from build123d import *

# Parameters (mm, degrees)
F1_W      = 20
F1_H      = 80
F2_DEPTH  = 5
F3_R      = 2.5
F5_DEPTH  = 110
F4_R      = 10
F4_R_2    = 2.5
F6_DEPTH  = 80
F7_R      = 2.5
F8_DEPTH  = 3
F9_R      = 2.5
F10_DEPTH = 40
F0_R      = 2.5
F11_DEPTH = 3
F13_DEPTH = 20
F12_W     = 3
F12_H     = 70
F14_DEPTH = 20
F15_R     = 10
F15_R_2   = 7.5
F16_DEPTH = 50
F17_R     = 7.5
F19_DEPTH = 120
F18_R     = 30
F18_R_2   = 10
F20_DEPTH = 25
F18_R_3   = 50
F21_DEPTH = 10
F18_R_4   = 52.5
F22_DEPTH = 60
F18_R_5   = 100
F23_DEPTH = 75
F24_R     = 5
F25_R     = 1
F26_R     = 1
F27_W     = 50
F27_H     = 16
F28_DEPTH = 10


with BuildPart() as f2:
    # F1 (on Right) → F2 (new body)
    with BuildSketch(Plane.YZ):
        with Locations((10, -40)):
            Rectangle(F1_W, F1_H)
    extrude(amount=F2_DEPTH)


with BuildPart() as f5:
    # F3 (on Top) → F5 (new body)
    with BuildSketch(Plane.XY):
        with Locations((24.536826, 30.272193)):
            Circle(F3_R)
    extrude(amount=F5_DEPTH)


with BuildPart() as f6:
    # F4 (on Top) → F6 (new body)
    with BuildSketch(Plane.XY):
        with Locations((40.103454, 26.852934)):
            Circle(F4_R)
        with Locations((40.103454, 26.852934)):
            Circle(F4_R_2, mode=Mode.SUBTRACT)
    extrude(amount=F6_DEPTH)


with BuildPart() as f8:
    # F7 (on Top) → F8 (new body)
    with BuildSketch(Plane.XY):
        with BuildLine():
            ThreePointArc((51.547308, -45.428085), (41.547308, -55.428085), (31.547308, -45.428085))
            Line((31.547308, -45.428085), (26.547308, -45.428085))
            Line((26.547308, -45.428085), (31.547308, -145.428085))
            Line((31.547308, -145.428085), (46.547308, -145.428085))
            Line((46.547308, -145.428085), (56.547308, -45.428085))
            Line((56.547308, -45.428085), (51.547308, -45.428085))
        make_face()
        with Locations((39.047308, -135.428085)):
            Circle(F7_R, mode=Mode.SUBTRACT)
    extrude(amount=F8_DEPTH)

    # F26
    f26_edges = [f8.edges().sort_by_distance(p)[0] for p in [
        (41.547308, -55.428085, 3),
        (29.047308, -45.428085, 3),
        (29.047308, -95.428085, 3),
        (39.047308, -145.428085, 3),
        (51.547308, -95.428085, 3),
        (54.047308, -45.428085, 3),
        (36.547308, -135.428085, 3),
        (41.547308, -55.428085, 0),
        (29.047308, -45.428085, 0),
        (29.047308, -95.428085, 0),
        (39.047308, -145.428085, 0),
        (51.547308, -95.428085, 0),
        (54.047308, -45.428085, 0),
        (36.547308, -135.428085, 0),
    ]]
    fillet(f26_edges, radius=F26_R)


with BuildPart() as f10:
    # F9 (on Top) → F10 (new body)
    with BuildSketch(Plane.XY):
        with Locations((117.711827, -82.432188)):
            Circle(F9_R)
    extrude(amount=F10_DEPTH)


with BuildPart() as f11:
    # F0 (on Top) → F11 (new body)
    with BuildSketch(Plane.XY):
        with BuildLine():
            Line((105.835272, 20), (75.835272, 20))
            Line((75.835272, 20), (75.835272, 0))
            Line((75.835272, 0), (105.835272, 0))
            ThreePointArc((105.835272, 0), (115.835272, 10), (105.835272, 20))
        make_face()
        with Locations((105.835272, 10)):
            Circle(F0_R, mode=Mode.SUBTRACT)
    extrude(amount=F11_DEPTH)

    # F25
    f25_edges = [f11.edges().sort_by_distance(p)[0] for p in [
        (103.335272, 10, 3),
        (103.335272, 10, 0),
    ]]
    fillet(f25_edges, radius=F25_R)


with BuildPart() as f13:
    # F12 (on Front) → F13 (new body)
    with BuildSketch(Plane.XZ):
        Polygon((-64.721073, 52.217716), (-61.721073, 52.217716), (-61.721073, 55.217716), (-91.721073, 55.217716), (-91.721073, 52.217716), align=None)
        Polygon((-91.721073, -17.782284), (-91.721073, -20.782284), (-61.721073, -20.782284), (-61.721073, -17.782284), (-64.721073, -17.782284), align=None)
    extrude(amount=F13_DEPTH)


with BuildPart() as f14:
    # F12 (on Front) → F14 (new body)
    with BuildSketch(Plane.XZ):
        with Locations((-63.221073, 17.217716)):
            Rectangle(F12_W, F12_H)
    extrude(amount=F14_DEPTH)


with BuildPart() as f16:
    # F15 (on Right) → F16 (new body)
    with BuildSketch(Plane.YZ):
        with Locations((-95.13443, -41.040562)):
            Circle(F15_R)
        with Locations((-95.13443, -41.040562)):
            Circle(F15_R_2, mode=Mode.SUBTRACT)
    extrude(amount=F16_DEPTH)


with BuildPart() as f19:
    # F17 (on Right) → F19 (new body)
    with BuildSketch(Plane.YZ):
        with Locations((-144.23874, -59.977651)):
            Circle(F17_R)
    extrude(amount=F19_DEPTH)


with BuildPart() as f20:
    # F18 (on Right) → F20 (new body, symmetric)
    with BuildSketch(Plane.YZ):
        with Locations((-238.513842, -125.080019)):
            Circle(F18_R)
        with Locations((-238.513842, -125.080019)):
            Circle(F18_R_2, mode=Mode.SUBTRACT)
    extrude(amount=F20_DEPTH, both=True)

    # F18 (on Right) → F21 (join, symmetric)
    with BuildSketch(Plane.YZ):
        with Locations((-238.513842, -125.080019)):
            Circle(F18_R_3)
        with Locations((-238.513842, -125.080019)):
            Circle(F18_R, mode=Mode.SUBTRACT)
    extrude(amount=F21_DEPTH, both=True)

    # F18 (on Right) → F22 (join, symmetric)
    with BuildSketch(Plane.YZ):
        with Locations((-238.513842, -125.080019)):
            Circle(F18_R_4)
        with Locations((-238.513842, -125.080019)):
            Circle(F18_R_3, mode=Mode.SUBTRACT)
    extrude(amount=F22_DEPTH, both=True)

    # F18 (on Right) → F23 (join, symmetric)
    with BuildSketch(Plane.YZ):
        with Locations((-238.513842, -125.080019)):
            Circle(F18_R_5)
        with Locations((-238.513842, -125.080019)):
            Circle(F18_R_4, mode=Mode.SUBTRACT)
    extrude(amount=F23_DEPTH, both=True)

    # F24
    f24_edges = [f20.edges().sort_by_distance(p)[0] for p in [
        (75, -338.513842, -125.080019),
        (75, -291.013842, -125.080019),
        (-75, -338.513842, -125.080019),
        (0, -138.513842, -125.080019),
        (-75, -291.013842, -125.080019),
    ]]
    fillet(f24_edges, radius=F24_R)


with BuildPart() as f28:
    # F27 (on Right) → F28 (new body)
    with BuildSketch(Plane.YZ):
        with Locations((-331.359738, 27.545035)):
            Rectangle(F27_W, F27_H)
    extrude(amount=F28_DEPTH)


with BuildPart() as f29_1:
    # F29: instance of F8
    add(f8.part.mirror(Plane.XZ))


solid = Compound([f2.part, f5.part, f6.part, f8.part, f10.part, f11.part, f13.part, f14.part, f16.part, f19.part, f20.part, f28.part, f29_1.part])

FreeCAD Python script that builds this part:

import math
import FreeCAD as App
import Part
import Sketcher
from FreeCAD import Vector


def edges_at(feature, points):
    """Names of the edges that pass closest to the given points."""
    edges = feature.Shape.Edges
    near = lambda p: min(range(len(edges)), key=lambda i: edges[i].distToShape(Part.Vertex(*p))[0])
    return sorted({f"Edge{near(p) + 1}" for p in points})

doc = App.newDocument("Part")
params = doc.addObject("Spreadsheet::Sheet", "Params")
for row, (alias, value) in enumerate([
    ("sketch1_width", "20 mm"),
    ("sketch1_height", "80 mm"),
    ("pad1_length", "5 mm"),
    ("sketch2_diameter", "5 mm"),
    ("pad2_length", "110 mm"),
    ("sketch3_diameter", "20 mm"),
    ("sketch3_diameter2", "5 mm"),
    ("pad3_length", "80 mm"),
    ("sketch4_diameter", "5 mm"),
    ("sketch4_radius", "10 mm"),
    ("sketch4_width", "5 mm"),
    ("sketch4_width2", "15 mm"),
    ("pad4_length", "3 mm"),
    ("fillet_radius", "1 mm"),
    ("sketch5_diameter", "5 mm"),
    ("pad5_length", "40 mm"),
    ("sketch6_diameter", "5 mm"),
    ("sketch6_radius", "10 mm"),
    ("sketch6_width", "30 mm"),
    ("pad6_length", "3 mm"),
    ("fillet2_radius", "1 mm"),
    ("sketch7_width", "30 mm"),
    ("sketch7_height", "3 mm"),
    ("pad7_length", "20 mm"),
    ("sketch8_width", "3 mm"),
    ("sketch8_height", "70 mm"),
    ("pad8_length", "20 mm"),
    ("sketch9_diameter", "20 mm"),
    ("sketch9_diameter2", "15 mm"),
    ("pad9_length", "50 mm"),
    ("sketch10_diameter", "15 mm"),
    ("pad10_length", "120 mm"),
    ("sketch11_diameter", "60 mm"),
    ("sketch11_diameter2", "20 mm"),
    ("pad11_length", "50 mm"),
    ("sketch12_diameter", "100 mm"),
    ("sketch12_diameter2", "60 mm"),
    ("pad12_length", "20 mm"),
    ("sketch13_diameter", "105 mm"),
    ("sketch13_diameter2", "100 mm"),
    ("pad13_length", "120 mm"),
    ("sketch14_diameter", "200 mm"),
    ("sketch14_diameter2", "105 mm"),
    ("pad14_length", "150 mm"),
    ("fillet3_radius", "5 mm"),
    ("sketch15_width", "50 mm"),
    ("sketch15_height", "16 mm"),
    ("pad15_length", "10 mm"),
], start=1):
    params.set(f"A{row}", alias)
    params.set(f"B{row}", "=" + value)
    params.setAlias(f"B{row}", alias)

body = doc.addObject("PartDesign::Body", "Body")

# Sketch on YZ plane
sketch1 = body.newObject("Sketcher::SketchObject", "Sketch")
sketch1.AttachmentSupport = (doc.getObject("YZ_Plane"), [""])
sketch1.MapMode = "FlatFace"
sketch1.addGeometry(Part.LineSegment(Vector(0, 0, 0), Vector(0, -80, 0)), False)
sketch1.addGeometry(Part.LineSegment(Vector(0, -80, 0), Vector(20, -80, 0)), False)
sketch1.addGeometry(Part.LineSegment(Vector(20, -80, 0), Vector(20, 0, 0)), False)
sketch1.addGeometry(Part.LineSegment(Vector(20, 0, 0), Vector(0, 0, 0)), False)
sketch1.addConstraint(Sketcher.Constraint("Coincident", 0, 2, 1, 1))
sketch1.addConstraint(Sketcher.Constraint("Coincident", 1, 2, 2, 1))
sketch1.addConstraint(Sketcher.Constraint("Coincident", 2, 2, 3, 1))
sketch1.addConstraint(Sketcher.Constraint("Coincident", 3, 2, 0, 1))
sketch1.addConstraint(Sketcher.Constraint("Vertical", 0))
sketch1.addConstraint(Sketcher.Constraint("Horizontal", 1))
sketch1.addConstraint(Sketcher.Constraint("Vertical", 2))
sketch1.addConstraint(Sketcher.Constraint("Horizontal", 3))
sketch1.addConstraint(Sketcher.Constraint("Coincident", 3, 2, -1, 1))
sketch1.addConstraint(Sketcher.Constraint("DistanceX", 1, 1, 1, 2, 20.0))
sketch1.addConstraint(Sketcher.Constraint("DistanceY", 0, 2, 0, 1, 80.0))
sketch1.setExpression("Constraints[9]", "Params.sketch1_width")
sketch1.setExpression("Constraints[10]", "Params.sketch1_height")
pad1 = body.newObject("PartDesign::Pad", "Pad")
pad1.Profile = sketch1
pad1.setExpression("Length", "Params.pad1_length")
body2 = doc.addObject("PartDesign::Body", "Body001")

# Sketch on XY plane
sketch2 = body2.newObject("Sketcher::SketchObject", "Sketch001")
sketch2.AttachmentSupport = (doc.getObject("XY_Plane001"), [""])
sketch2.MapMode = "FlatFace"
sketch2.addGeometry(Part.Circle(Vector(24.536826, 30.272193, 0), Vector(0, 0, 1), 2.5), False)
sketch2.addConstraint(Sketcher.Constraint("Diameter", 0, 5.0))
sketch2.addConstraint(Sketcher.Constraint("DistanceX", -1, 1, 0, 3, 24.536826))
sketch2.addConstraint(Sketcher.Constraint("DistanceY", -1, 1, 0, 3, 30.272193))
sketch2.setExpression("Constraints[0]", "Params.sketch2_diameter")
pad2 = body2.newObject("PartDesign::Pad", "Pad001")
pad2.Profile = sketch2
pad2.setExpression("Length", "Params.pad2_length")
body3 = doc.addObject("PartDesign::Body", "Body002")

# Sketch on XY plane
sketch3 = body3.newObject("Sketcher::SketchObject", "Sketch002")
sketch3.AttachmentSupport = (doc.getObject("XY_Plane002"), [""])
sketch3.MapMode = "FlatFace"
sketch3.addGeometry(Part.Circle(Vector(40.103454, 26.852934, 0), Vector(0, 0, 1), 10), False)
sketch3.addGeometry(Part.Circle(Vector(40.103454, 26.852934, 0), Vector(0, 0, 1), 2.5), False)
sketch3.addConstraint(Sketcher.Constraint("Coincident", 1, 3, 0, 3))
sketch3.addConstraint(Sketcher.Constraint("Diameter", 0, 20.0))
sketch3.addConstraint(Sketcher.Constraint("Diameter", 1, 5.0))
sketch3.addConstraint(Sketcher.Constraint("DistanceX", -1, 1, 0, 3, 40.103454))
sketch3.addConstraint(Sketcher.Constraint("DistanceY", -1, 1, 0, 3, 26.852934))
sketch3.setExpression("Constraints[1]", "Params.sketch3_diameter")
sketch3.setExpression("Constraints[2]", "Params.sketch3_diameter2")
pad3 = body3.newObject("PartDesign::Pad", "Pad002")
pad3.Profile = sketch3
pad3.setExpression("Length", "Params.pad3_length")
body4 = doc.addObject("PartDesign::Body", "Body003")

# Sketch on XY plane
sketch4 = body4.newObject("Sketcher::SketchObject", "Sketch003")
sketch4.AttachmentSupport = (doc.getObject("XY_Plane003"), [""])
sketch4.MapMode = "FlatFace"
sketch4.addGeometry(Part.ArcOfCircle(Part.Circle(Vector(41.547308, -45.428085, 0), Vector(0, 0, 1), 10), math.radians(180), math.radians(360)), False)
sketch4.addGeometry(Part.LineSegment(Vector(31.547308, -45.428085, 0), Vector(26.547308, -45.428085, 0)), False)
sketch4.addGeometry(Part.LineSegment(Vector(26.547308, -45.428085, 0), Vector(31.547308, -145.428085, 0)), False)
sketch4.addGeometry(Part.LineSegment(Vector(31.547308, -145.428085, 0), Vector(46.547308, -145.428085, 0)), False)
sketch4.addGeometry(Part.LineSegment(Vector(46.547308, -145.428085, 0), Vector(56.547308, -45.428085, 0)), False)
sketch4.addGeometry(Part.LineSegment(Vector(56.547308, -45.428085, 0), Vector(51.547308, -45.428085, 0)), False)
sketch4.addGeometry(Part.Circle(Vector(39.047308, -135.428085, 0), Vector(0, 0, 1), 2.5), False)
sketch4.addConstraint(Sketcher.Constraint("Coincident", 0, 1, 1, 1))
sketch4.addConstraint(Sketcher.Constraint("Coincident", 1, 2, 2, 1))
sketch4.addConstraint(Sketcher.Constraint("Coincident", 2, 2, 3, 1))
sketch4.addConstraint(Sketcher.Constraint("Coincident", 3, 2, 4, 1))
sketch4.addConstraint(Sketcher.Constraint("Coincident", 4, 2, 5, 1))
sketch4.addConstraint(Sketcher.Constraint("Coincident", 5, 2, 0, 2))
sketch4.addConstraint(Sketcher.Constraint("Horizontal", 1))
sketch4.addConstraint(Sketcher.Constraint("Horizontal", 3))
sketch4.addConstraint(Sketcher.Constraint("Horizontal", 5))
sketch4.addConstraint(Sketcher.Constraint("Horizontal", 1, 2, 4, 2))
sketch4.addConstraint(Sketcher.Constraint("Vertical", 0, 1, 2, 2))
sketch4.addConstraint(Sketcher.Constraint("Equal", 1, 5))
sketch4.addConstraint(Sketcher.Constraint("Diameter", 6, 5.0))
sketch4.addConstraint(Sketcher.Constraint("Radius", 0, 10.0))
sketch4.addConstraint(Sketcher.Constraint("DistanceX", 1, 2, 1, 1, 5.0))
sketch4.addConstraint(Sketcher.Constraint("DistanceX", 3, 1, 3, 2, 15.0))
sketch4.addConstraint(Sketcher.Constraint("DistanceY", 6, 3, 0, 3, 90.0))
sketch4.addConstraint(Sketcher.Constraint("DistanceY", 6, 3, 0, 1, 90.0))
sketch4.addConstraint(Sketcher.Constraint("DistanceY", 2, 2, 6, 3, 10.0))
sketch4.addConstraint(Sketcher.Constraint("DistanceX", 6, 3, 0, 3, 2.5))
sketch4.addConstraint(Sketcher.Constraint("DistanceX", -1, 1, 0, 1, 31.547308))
sketch4.addConstraint(Sketcher.Constraint("DistanceY", 0, 3, -1, 1, 45.428085))
sketch4.setExpression("Constraints[12]", "Params.sketch4_diameter")
sketch4.setExpression("Constraints[13]", "Params.sketch4_radius")
sketch4.setExpression("Constraints[14]", "Params.sketch4_width")
sketch4.setExpression("Constraints[15]", "Params.sketch4_width2")
pad4 = body4.newObject("PartDesign::Pad", "Pad003")
pad4.Profile = sketch4
pad4.setExpression("Length", "Params.pad4_length")
doc.recompute()

fillet = body4.newObject("PartDesign::Fillet", "Fillet")
fillet.Base = (pad4, edges_at(pad4, [
    (41.547, -55.428, 3),
    (29.047, -45.428, 3),
    (29.047, -95.428, 3),
    (39.047, -145.428, 3),
    (51.547, -95.428, 3),
    (54.047, -45.428, 3),
    (36.547, -135.428, 3),
    (41.547, -55.428, 0),
    (29.047, -45.428, 0),
    (29.047, -95.428, 0),
    (39.047, -145.428, 0),
    (51.547, -95.428, 0),
    (54.047, -45.428, 0),
    (36.547, -135.428, 0),
]))
fillet.setExpression("Radius", "Params.fillet_radius")
body5 = doc.addObject("PartDesign::Body", "Body004")

# Sketch on XY plane
sketch5 = body5.newObject("Sketcher::SketchObject", "Sketch004")
sketch5.AttachmentSupport = (doc.getObject("XY_Plane004"), [""])
sketch5.MapMode = "FlatFace"
sketch5.addGeometry(Part.Circle(Vector(117.711827, -82.432188, 0), Vector(0, 0, 1), 2.5), False)
sketch5.addConstraint(Sketcher.Constraint("Diameter", 0, 5.0))
sketch5.addConstraint(Sketcher.Constraint("DistanceX", -1, 1, 0, 3, 117.711827))
sketch5.addConstraint(Sketcher.Constraint("DistanceY", 0, 3, -1, 1, 82.432188))
sketch5.setExpression("Constraints[0]", "Params.sketch5_diameter")
pad5 = body5.newObject("PartDesign::Pad", "Pad004")
pad5.Profile = sketch5
pad5.setExpression("Length", "Params.pad5_length")
body6 = doc.addObject("PartDesign::Body", "Body005")

# Sketch on XY plane
sketch6 = body6.newObject("Sketcher::SketchObject", "Sketch005")
sketch6.AttachmentSupport = (doc.getObject("XY_Plane005"), [""])
sketch6.MapMode = "FlatFace"
sketch6.addGeometry(Part.LineSegment(Vector(105.835272, 20, 0), Vector(75.835272, 20, 0)), False)
sketch6.addGeometry(Part.LineSegment(Vector(75.835272, 20, 0), Vector(75.835272, 0, 0)), False)
sketch6.addGeometry(Part.LineSegment(Vector(75.835272, 0, 0), Vector(105.835272, 0, 0)), False)
sketch6.addGeometry(Part.ArcOfCircle(Part.Circle(Vector(105.835272, 10, 0), Vector(0, 0, 1), 10), math.radians(-90), math.radians(90)), False)
sketch6.addGeometry(Part.Circle(Vector(105.835272, 10, 0), Vector(0, 0, 1), 2.5), False)
sketch6.addConstraint(Sketcher.Constraint("Coincident", 0, 2, 1, 1))
sketch6.addConstraint(Sketcher.Constraint("Coincident", 1, 2, 2, 1))
sketch6.addConstraint(Sketcher.Constraint("Tangent", 2, 2, 3, 1))
sketch6.addConstraint(Sketcher.Constraint("Tangent", 3, 2, 0, 1))
sketch6.addConstraint(Sketcher.Constraint("Horizontal", 0))
sketch6.addConstraint(Sketcher.Constraint("Vertical", 1))
sketch6.addConstraint(Sketcher.Constraint("Horizontal", 2))
sketch6.addConstraint(Sketcher.Constraint("Coincident", 4, 3, 3, 3))
sketch6.addConstraint(Sketcher.Constraint("PointOnObject", 1, 2, -1))
sketch6.addConstraint(Sketcher.Constraint("Diameter", 4, 5.0))
sketch6.addConstraint(Sketcher.Constraint("Radius", 3, 10.0))
sketch6.addConstraint(Sketcher.Constraint("DistanceX", 0, 2, 0, 1, 30.0))
sketch6.addConstraint(Sketcher.Constraint("DistanceX", -1, 1, 3, 3, 105.835272))
sketch6.setExpression("Constraints[9]", "Params.sketch6_diameter")
sketch6.setExpression("Constraints[10]", "Params.sketch6_radius")
sketch6.setExpression("Constraints[11]", "Params.sketch6_width")
pad6 = body6.newObject("PartDesign::Pad", "Pad005")
pad6.Profile = sketch6
pad6.setExpression("Length", "Params.pad6_length")
doc.recompute()

fillet2 = body6.newObject("PartDesign::Fillet", "Fillet001")
fillet2.Base = (pad6, edges_at(pad6, [(103.335, 10, 3), (103.335, 10, 0)]))
fillet2.setExpression("Radius", "Params.fillet2_radius")
body7 = doc.addObject("PartDesign::Body", "Body006")
body7.AllowCompound = True

# Sketch on XZ plane
sketch7 = body7.newObject("Sketcher::SketchObject", "Sketch006")
sketch7.AttachmentSupport = (doc.getObject("XZ_Plane006"), [""])
sketch7.MapMode = "FlatFace"
sketch7.addGeometry(Part.LineSegment(Vector(-61.721073, 52.217716, 0), Vector(-61.721073, 55.217716, 0)), False)
sketch7.addGeometry(Part.LineSegment(Vector(-61.721073, 55.217716, 0), Vector(-91.721073, 55.217716, 0)), False)
sketch7.addGeometry(Part.LineSegment(Vector(-91.721073, 55.217716, 0), Vector(-91.721073, 52.217716, 0)), False)
sketch7.addGeometry(Part.LineSegment(Vector(-91.721073, 52.217716, 0), Vector(-61.721073, 52.217716, 0)), False)
sketch7.addGeometry(Part.LineSegment(Vector(-91.721073, -17.782284, 0), Vector(-91.721073, -20.782284, 0)), False)
sketch7.addGeometry(Part.LineSegment(Vector(-91.721073, -20.782284, 0), Vector(-61.721073, -20.782284, 0)), False)
sketch7.addGeometry(Part.LineSegment(Vector(-61.721073, -20.782284, 0), Vector(-61.721073, -17.782284, 0)), False)
sketch7.addGeometry(Part.LineSegment(Vector(-61.721073, -17.782284, 0), Vector(-91.721073, -17.782284, 0)), False)
sketch7.addConstraint(Sketcher.Constraint("Coincident", 0, 2, 1, 1))
sketch7.addConstraint(Sketcher.Constraint("Coincident", 1, 2, 2, 1))
sketch7.addConstraint(Sketcher.Constraint("Coincident", 2, 2, 3, 1))
sketch7.addConstraint(Sketcher.Constraint("Coincident", 3, 2, 0, 1))
sketch7.addConstraint(Sketcher.Constraint("Coincident", 4, 2, 5, 1))
sketch7.addConstraint(Sketcher.Constraint("Coincident", 5, 2, 6, 1))
sketch7.addConstraint(Sketcher.Constraint("Coincident", 6, 2, 7, 1))
sketch7.addConstraint(Sketcher.Constraint("Coincident", 7, 2, 4, 1))
sketch7.addConstraint(Sketcher.Constraint("Vertical", 0))
sketch7.addConstraint(Sketcher.Constraint("Horizontal", 1))
sketch7.addConstraint(Sketcher.Constraint("Vertical", 2))
sketch7.addConstraint(Sketcher.Constraint("Horizontal", 3))
sketch7.addConstraint(Sketcher.Constraint("Vertical", 4))
sketch7.addConstraint(Sketcher.Constraint("Horizontal", 5))
sketch7.addConstraint(Sketcher.Constraint("Vertical", 6))
sketch7.addConstraint(Sketcher.Constraint("Horizontal", 7))
sketch7.addConstraint(Sketcher.Constraint("Vertical", 2, 2, 4, 2))
sketch7.addConstraint(Sketcher.Constraint("Vertical", 3, 2, 5, 2))
sketch7.addConstraint(Sketcher.Constraint("Equal", 2, 4))
sketch7.addConstraint(Sketcher.Constraint("DistanceX", 1, 2, 1, 1, 30.0))
sketch7.addConstraint(Sketcher.Constraint("DistanceY", 0, 1, 0, 2, 3.0))
sketch7.addConstraint(Sketcher.Constraint("DistanceY", 4, 2, 2, 2, 73.0))
sketch7.addConstraint(Sketcher.Constraint("DistanceX", 0, 2, -1, 1, 61.721073))
sketch7.addConstraint(Sketcher.Constraint("DistanceY", -1, 1, 0, 2, 55.217716))
sketch7.setExpression("Constraints[19]", "Params.sketch7_width")
sketch7.setExpression("Constraints[20]", "Params.sketch7_height")
pad7 = body7.newObject("PartDesign::Pad", "Pad006")
pad7.Profile = sketch7
pad7.setExpression("Length", "Params.pad7_length")
body8 = doc.addObject("PartDesign::Body", "Body007")

# Sketch on XZ plane
sketch8 = body8.newObject("Sketcher::SketchObject", "Sketch007")
sketch8.AttachmentSupport = (doc.getObject("XZ_Plane007"), [""])
sketch8.MapMode = "FlatFace"
sketch8.addGeometry(Part.LineSegment(Vector(-64.721073, 52.217716, 0), Vector(-64.721073, -17.782284, 0)), False)
sketch8.addGeometry(Part.LineSegment(Vector(-64.721073, -17.782284, 0), Vector(-61.721073, -17.782284, 0)), False)
sketch8.addGeometry(Part.LineSegment(Vector(-61.721073, -17.782284, 0), Vector(-61.721073, 52.217716, 0)), False)
sketch8.addGeometry(Part.LineSegment(Vector(-61.721073, 52.217716, 0), Vector(-64.721073, 52.217716, 0)), False)
sketch8.addConstraint(Sketcher.Constraint("Coincident", 0, 2, 1, 1))
sketch8.addConstraint(Sketcher.Constraint("Coincident", 1, 2, 2, 1))
sketch8.addConstraint(Sketcher.Constraint("Coincident", 2, 2, 3, 1))
sketch8.addConstraint(Sketcher.Constraint("Coincident", 3, 2, 0, 1))
sketch8.addConstraint(Sketcher.Constraint("Vertical", 0))
sketch8.addConstraint(Sketcher.Constraint("Horizontal", 1))
sketch8.addConstraint(Sketcher.Constraint("Vertical", 2))
sketch8.addConstraint(Sketcher.Constraint("Horizontal", 3))
sketch8.addConstraint(Sketcher.Constraint("DistanceX", 1, 1, 1, 2, 3.0))
sketch8.addConstraint(Sketcher.Constraint("DistanceY", 0, 2, 0, 1, 70.0))
sketch8.addConstraint(Sketcher.Constraint("DistanceX", 0, 2, -1, 1, 64.721073))
sketch8.addConstraint(Sketcher.Constraint("DistanceY", 0, 2, -1, 1, 17.782284))
sketch8.setExpression("Constraints[8]", "Params.sketch8_width")
sketch8.setExpression("Constraints[9]", "Params.sketch8_height")
pad8 = body8.newObject("PartDesign::Pad", "Pad007")
pad8.Profile = sketch8
pad8.setExpression("Length", "Params.pad8_length")
body9 = doc.addObject("PartDesign::Body", "Body008")

# Sketch on YZ plane
sketch9 = body9.newObject("Sketcher::SketchObject", "Sketch008")
sketch9.AttachmentSupport = (doc.getObject("YZ_Plane008"), [""])
sketch9.MapMode = "FlatFace"
sketch9.addGeometry(Part.Circle(Vector(-95.13443, -41.040562, 0), Vector(0, 0, 1), 10), False)
sketch9.addGeometry(Part.Circle(Vector(-95.13443, -41.040562, 0), Vector(0, 0, 1), 7.5), False)
sketch9.addConstraint(Sketcher.Constraint("Coincident", 1, 3, 0, 3))
sketch9.addConstraint(Sketcher.Constraint("Diameter", 0, 20.0))
sketch9.addConstraint(Sketcher.Constraint("Diameter", 1, 15.0))
sketch9.addConstraint(Sketcher.Constraint("DistanceX", 0, 3, -1, 1, 95.13443))
sketch9.addConstraint(Sketcher.Constraint("DistanceY", 0, 3, -1, 1, 41.040562))
sketch9.setExpression("Constraints[1]", "Params.sketch9_diameter")
sketch9.setExpression("Constraints[2]", "Params.sketch9_diameter2")
pad9 = body9.newObject("PartDesign::Pad", "Pad008")
pad9.Profile = sketch9
pad9.setExpression("Length", "Params.pad9_length")
body10 = doc.addObject("PartDesign::Body", "Body009")

# Sketch on YZ plane
sketch10 = body10.newObject("Sketcher::SketchObject", "Sketch009")
sketch10.AttachmentSupport = (doc.getObject("YZ_Plane009"), [""])
sketch10.MapMode = "FlatFace"
sketch10.addGeometry(Part.Circle(Vector(-144.23874, -59.977651, 0), Vector(0, 0, 1), 7.5), False)
sketch10.addConstraint(Sketcher.Constraint("Diameter", 0, 15.0))
sketch10.addConstraint(Sketcher.Constraint("DistanceX", 0, 3, -1, 1, 144.23874))
sketch10.addConstraint(Sketcher.Constraint("DistanceY", 0, 3, -1, 1, 59.977651))
sketch10.setExpression("Constraints[0]", "Params.sketch10_diameter")
pad10 = body10.newObject("PartDesign::Pad", "Pad009")
pad10.Profile = sketch10
pad10.setExpression("Length", "Params.pad10_length")
body11 = doc.addObject("PartDesign::Body", "Body010")

# Sketch on YZ plane
sketch11 = body11.newObject("Sketcher::SketchObject", "Sketch010")
sketch11.AttachmentSupport = (doc.getObject("YZ_Plane010"), [""])
sketch11.MapMode = "FlatFace"
sketch11.addGeometry(Part.Circle(Vector(-238.513842, -125.080019, 0), Vector(0, 0, 1), 30), False)
sketch11.addGeometry(Part.Circle(Vector(-238.513842, -125.080019, 0), Vector(0, 0, 1), 10), False)
sketch11.addConstraint(Sketcher.Constraint("Coincident", 1, 3, 0, 3))
sketch11.addConstraint(Sketcher.Constraint("Diameter", 0, 60.0))
sketch11.addConstraint(Sketcher.Constraint("Diameter", 1, 20.0))
sketch11.addConstraint(Sketcher.Constraint("DistanceY", 0, 3, -1, 1, 125.080019))
sketch11.addConstraint(Sketcher.Constraint("DistanceX", 0, 3, -1, 1, 238.513842))
sketch11.setExpression("Constraints[1]", "Params.sketch11_diameter")
sketch11.setExpression("Constraints[2]", "Params.sketch11_diameter2")
pad11 = body11.newObject("PartDesign::Pad", "Pad010")
pad11.Profile = sketch11
pad11.setExpression("Length", "Params.pad11_length")
pad11.Midplane = True

# Sketch on YZ plane
sketch12 = body11.newObject("Sketcher::SketchObject", "Sketch011")
sketch12.AttachmentSupport = (doc.getObject("YZ_Plane010"), [""])
sketch12.MapMode = "FlatFace"
sketch12.addGeometry(Part.Circle(Vector(-238.513842, -125.080019, 0), Vector(0, 0, 1), 50), False)
sketch12.addGeometry(Part.Circle(Vector(-238.513842, -125.080019, 0), Vector(0, 0, 1), 30), False)
sketch12.addConstraint(Sketcher.Constraint("Coincident", 1, 3, 0, 3))
sketch12.addConstraint(Sketcher.Constraint("Diameter", 0, 100.0))
sketch12.addConstraint(Sketcher.Constraint("Diameter", 1, 60.0))
sketch12.addConstraint(Sketcher.Constraint("DistanceY", 0, 3, -1, 1, 125.080019))
sketch12.addConstraint(Sketcher.Constraint("DistanceX", 0, 3, -1, 1, 238.513842))
sketch12.setExpression("Constraints[1]", "Params.sketch12_diameter")
sketch12.setExpression("Constraints[2]", "Params.sketch12_diameter2")
pad12 = body11.newObject("PartDesign::Pad", "Pad011")
pad12.Profile = sketch12
pad12.setExpression("Length", "Params.pad12_length")
pad12.Midplane = True

# Sketch on YZ plane
sketch13 = body11.newObject("Sketcher::SketchObject", "Sketch012")
sketch13.AttachmentSupport = (doc.getObject("YZ_Plane010"), [""])
sketch13.MapMode = "FlatFace"
sketch13.addGeometry(Part.Circle(Vector(-238.513842, -125.080019, 0), Vector(0, 0, 1), 52.5), False)
sketch13.addGeometry(Part.Circle(Vector(-238.513842, -125.080019, 0), Vector(0, 0, 1), 50), False)
sketch13.addConstraint(Sketcher.Constraint("Coincident", 1, 3, 0, 3))
sketch13.addConstraint(Sketcher.Constraint("Diameter", 0, 105.0))
sketch13.addConstraint(Sketcher.Constraint("Diameter", 1, 100.0))
sketch13.addConstraint(Sketcher.Constraint("DistanceY", 0, 3, -1, 1, 125.080019))
sketch13.addConstraint(Sketcher.Constraint("DistanceX", 0, 3, -1, 1, 238.513842))
sketch13.setExpression("Constraints[1]", "Params.sketch13_diameter")
sketch13.setExpression("Constraints[2]", "Params.sketch13_diameter2")
pad13 = body11.newObject("PartDesign::Pad", "Pad012")
pad13.Profile = sketch13
pad13.setExpression("Length", "Params.pad13_length")
pad13.Midplane = True

# Sketch on YZ plane
sketch14 = body11.newObject("Sketcher::SketchObject", "Sketch013")
sketch14.AttachmentSupport = (doc.getObject("YZ_Plane010"), [""])
sketch14.MapMode = "FlatFace"
sketch14.addGeometry(Part.Circle(Vector(-238.513842, -125.080019, 0), Vector(0, 0, 1), 100), False)
sketch14.addGeometry(Part.Circle(Vector(-238.513842, -125.080019, 0), Vector(0, 0, 1), 52.5), False)
sketch14.addConstraint(Sketcher.Constraint("Coincident", 1, 3, 0, 3))
sketch14.addConstraint(Sketcher.Constraint("Diameter", 0, 200.0))
sketch14.addConstraint(Sketcher.Constraint("Diameter", 1, 105.0))
sketch14.addConstraint(Sketcher.Constraint("DistanceY", 0, 3, -1, 1, 125.080019))
sketch14.addConstraint(Sketcher.Constraint("DistanceX", 0, 3, -1, 1, 238.513842))
sketch14.setExpression("Constraints[1]", "Params.sketch14_diameter")
sketch14.setExpression("Constraints[2]", "Params.sketch14_diameter2")
pad14 = body11.newObject("PartDesign::Pad", "Pad013")
pad14.Profile = sketch14
pad14.setExpression("Length", "Params.pad14_length")
pad14.Midplane = True
doc.recompute()

fillet3 = body11.newObject("PartDesign::Fillet", "Fillet002")
fillet3.Base = (pad14, edges_at(pad14, [
    (75, -338.514, -125.08),
    (75, -291.014, -125.08),
    (-75, -338.514, -125.08),
    (0, -138.514, -125.08),
    (-75, -291.014, -125.08),
]))
fillet3.setExpression("Radius", "Params.fillet3_radius")
body12 = doc.addObject("PartDesign::Body", "Body011")

# Sketch on YZ plane
sketch15 = body12.newObject("Sketcher::SketchObject", "Sketch014")
sketch15.AttachmentSupport = (doc.getObject("YZ_Plane011"), [""])
sketch15.MapMode = "FlatFace"
sketch15.addGeometry(Part.LineSegment(Vector(-356.359738, 35.545035, 0), Vector(-356.359738, 19.545035, 0)), False)
sketch15.addGeometry(Part.LineSegment(Vector(-356.359738, 19.545035, 0), Vector(-306.359738, 19.545035, 0)), False)
sketch15.addGeometry(Part.LineSegment(Vector(-306.359738, 19.545035, 0), Vector(-306.359738, 35.545035, 0)), False)
sketch15.addGeometry(Part.LineSegment(Vector(-306.359738, 35.545035, 0), Vector(-356.359738, 35.545035, 0)), False)
sketch15.addConstraint(Sketcher.Constraint("Coincident", 0, 2, 1, 1))
sketch15.addConstraint(Sketcher.Constraint("Coincident", 1, 2, 2, 1))
sketch15.addConstraint(Sketcher.Constraint("Coincident", 2, 2, 3, 1))
sketch15.addConstraint(Sketcher.Constraint("Coincident", 3, 2, 0, 1))
sketch15.addConstraint(Sketcher.Constraint("Vertical", 0))
sketch15.addConstraint(Sketcher.Constraint("Horizontal", 1))
sketch15.addConstraint(Sketcher.Constraint("Vertical", 2))
sketch15.addConstraint(Sketcher.Constraint("Horizontal", 3))
sketch15.addConstraint(Sketcher.Constraint("DistanceX", 1, 1, 1, 2, 50.0))
sketch15.addConstraint(Sketcher.Constraint("DistanceY", 0, 2, 0, 1, 16.0))
sketch15.addConstraint(Sketcher.Constraint("DistanceX", 0, 2, -1, 1, 356.359738))
sketch15.addConstraint(Sketcher.Constraint("DistanceY", -1, 1, 0, 2, 19.545035))
sketch15.setExpression("Constraints[8]", "Params.sketch15_width")
sketch15.setExpression("Constraints[9]", "Params.sketch15_height")
pad15 = body12.newObject("PartDesign::Pad", "Pad014")
pad15.Profile = sketch15
pad15.setExpression("Length", "Params.pad15_length")
body13 = doc.addObject("PartDesign::Body", "Body012")
doc.recompute()

mirroring = doc.addObject("Part::Mirroring", "Mirroring")
mirroring.Source = body4
mirroring.Base = Vector(0, 0, 0)
mirroring.Normal = Vector(0, -1, 0)
body13.BaseFeature = mirroring
doc.recompute()
mirroring.Visibility = False

doc.recompute()
